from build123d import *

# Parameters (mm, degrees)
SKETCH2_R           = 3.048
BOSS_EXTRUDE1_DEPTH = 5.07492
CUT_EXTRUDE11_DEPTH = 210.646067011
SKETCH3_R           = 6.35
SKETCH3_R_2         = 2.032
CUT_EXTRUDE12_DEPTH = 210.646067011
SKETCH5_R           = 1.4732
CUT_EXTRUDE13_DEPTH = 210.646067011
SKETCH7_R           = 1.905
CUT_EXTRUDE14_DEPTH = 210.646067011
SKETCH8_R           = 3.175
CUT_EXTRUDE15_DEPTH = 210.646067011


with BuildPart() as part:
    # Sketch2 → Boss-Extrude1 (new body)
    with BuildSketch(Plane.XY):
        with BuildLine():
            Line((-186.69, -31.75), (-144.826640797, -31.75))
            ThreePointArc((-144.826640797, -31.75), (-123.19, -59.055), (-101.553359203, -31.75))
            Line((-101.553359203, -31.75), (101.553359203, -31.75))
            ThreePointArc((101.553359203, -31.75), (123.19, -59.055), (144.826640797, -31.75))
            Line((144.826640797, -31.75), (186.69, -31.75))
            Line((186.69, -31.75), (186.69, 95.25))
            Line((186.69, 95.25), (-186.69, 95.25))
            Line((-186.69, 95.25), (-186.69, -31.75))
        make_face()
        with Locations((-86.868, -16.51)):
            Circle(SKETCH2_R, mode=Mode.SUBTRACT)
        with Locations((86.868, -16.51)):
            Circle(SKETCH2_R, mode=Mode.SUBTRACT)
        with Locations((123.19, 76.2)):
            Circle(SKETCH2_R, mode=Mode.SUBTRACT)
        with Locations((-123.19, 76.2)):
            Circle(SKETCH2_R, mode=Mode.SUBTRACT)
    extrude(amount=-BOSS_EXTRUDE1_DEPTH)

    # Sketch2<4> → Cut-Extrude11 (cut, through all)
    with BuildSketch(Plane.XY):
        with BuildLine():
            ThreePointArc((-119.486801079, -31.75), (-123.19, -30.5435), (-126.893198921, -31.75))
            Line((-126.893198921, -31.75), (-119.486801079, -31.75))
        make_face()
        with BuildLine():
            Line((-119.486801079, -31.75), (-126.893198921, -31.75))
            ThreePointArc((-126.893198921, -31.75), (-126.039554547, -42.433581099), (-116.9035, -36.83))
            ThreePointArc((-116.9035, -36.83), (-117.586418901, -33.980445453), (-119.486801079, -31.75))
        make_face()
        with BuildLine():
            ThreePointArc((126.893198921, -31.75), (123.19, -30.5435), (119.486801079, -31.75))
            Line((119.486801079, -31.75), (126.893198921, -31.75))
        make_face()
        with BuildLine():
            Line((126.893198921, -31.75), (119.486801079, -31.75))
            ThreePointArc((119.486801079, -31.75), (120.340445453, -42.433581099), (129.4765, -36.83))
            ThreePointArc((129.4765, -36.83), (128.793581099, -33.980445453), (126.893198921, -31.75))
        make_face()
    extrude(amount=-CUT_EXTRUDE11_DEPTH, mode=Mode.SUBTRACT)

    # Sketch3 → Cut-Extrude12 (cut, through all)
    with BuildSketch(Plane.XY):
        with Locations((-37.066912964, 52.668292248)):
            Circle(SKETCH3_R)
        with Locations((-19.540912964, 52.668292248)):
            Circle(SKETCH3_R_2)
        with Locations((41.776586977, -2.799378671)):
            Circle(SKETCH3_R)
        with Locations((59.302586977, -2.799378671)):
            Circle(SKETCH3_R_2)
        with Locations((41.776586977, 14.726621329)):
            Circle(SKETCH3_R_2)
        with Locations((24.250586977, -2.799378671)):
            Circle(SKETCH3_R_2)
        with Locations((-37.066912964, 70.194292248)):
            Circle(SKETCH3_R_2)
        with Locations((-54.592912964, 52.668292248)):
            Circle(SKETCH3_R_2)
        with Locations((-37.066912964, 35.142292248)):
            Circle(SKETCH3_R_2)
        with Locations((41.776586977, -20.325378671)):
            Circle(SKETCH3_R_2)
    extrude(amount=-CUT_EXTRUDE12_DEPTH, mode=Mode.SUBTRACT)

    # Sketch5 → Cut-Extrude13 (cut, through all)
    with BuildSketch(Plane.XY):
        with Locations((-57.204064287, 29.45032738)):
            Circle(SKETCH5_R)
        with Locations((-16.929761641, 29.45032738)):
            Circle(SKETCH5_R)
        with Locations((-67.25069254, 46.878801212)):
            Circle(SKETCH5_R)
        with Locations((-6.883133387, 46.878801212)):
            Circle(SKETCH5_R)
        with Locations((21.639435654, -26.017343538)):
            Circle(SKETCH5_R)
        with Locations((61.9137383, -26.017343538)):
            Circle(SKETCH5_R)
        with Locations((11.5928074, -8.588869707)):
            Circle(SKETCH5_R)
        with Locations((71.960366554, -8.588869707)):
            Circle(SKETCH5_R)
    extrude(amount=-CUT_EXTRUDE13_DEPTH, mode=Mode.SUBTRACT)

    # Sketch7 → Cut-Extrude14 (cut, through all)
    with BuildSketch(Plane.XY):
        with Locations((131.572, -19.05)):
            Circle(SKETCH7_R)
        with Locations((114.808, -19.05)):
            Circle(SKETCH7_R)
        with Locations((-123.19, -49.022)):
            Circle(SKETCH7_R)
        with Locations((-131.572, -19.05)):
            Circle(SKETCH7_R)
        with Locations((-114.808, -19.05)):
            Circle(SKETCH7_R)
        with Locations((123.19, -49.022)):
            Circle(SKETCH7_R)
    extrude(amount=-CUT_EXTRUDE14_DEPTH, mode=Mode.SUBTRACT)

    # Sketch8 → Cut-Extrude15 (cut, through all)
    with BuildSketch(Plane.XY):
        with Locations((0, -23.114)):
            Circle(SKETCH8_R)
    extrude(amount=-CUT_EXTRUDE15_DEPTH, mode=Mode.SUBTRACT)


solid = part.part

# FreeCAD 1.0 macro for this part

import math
import FreeCAD as App
import Part
import Sketcher

V = App.Vector
Q = App.Units.Quantity

doc = App.newDocument("Part")
body = doc.addObject("PartDesign::Body", "Body")

sketch1 = body.newObject("Sketcher::SketchObject", "Sketch")
sketch1.AttachmentSupport = (doc.getObject("XY_Plane"), [""])
sketch1.MapMode = "FlatFace"
sketch1.addGeometry(Part.LineSegment(V(-186.7, -31.8, 0), V(-144.8, -31.8, 0)), False)
sketch1.addGeometry(Part.ArcOfCircle(Part.Circle(V(-123.2, -36.8, 0), V(0, 0, 1), 22.2), math.radians(167), math.radians(373)), False)
sketch1.addGeometry(Part.LineSegment(V(-101.6, -31.8, 0), V(101.6, -31.8, 0)), False)
sketch1.addGeometry(Part.ArcOfCircle(Part.Circle(V(123.2, -36.8, 0), V(0, 0, 1), 22.2), math.radians(167), math.radians(373)), False)
sketch1.addGeometry(Part.LineSegment(V(144.8, -31.8, 0), V(186.7, -31.8, 0)), False)
sketch1.addGeometry(Part.LineSegment(V(186.7, -31.8, 0), V(186.7, 95.2, 0)), False)
sketch1.addGeometry(Part.LineSegment(V(186.7, 95.2, 0), V(-186.7, 95.2, 0)), False)
sketch1.addGeometry(Part.LineSegment(V(-186.7, 95.2, 0), V(-186.7, -31.8, 0)), False)
sketch1.addGeometry(Part.Circle(V(-86.9, -16.5, 0), V(0, 0, 1), 3), False)
sketch1.addGeometry(Part.Circle(V(86.9, -16.5, 0), V(0, 0, 1), 3), False)
sketch1.addGeometry(Part.Circle(V(-123.2, 76.2, 0), V(0, 0, 1), 3), False)
sketch1.addGeometry(Part.Circle(V(123.2, 76.2, 0), V(0, 0, 1), 3), False)
sketch1.addConstraint(Sketcher.Constraint("Coincident", 0, 2, 1, 1))
sketch1.addConstraint(Sketcher.Constraint("Coincident", 1, 2, 2, 1))
sketch1.addConstraint(Sketcher.Constraint("Coincident", 2, 2, 3, 1))
sketch1.addConstraint(Sketcher.Constraint("Coincident", 3, 2, 4, 1))
sketch1.addConstraint(Sketcher.Constraint("Coincident", 4, 2, 5, 1))
sketch1.addConstraint(Sketcher.Constraint("Coincident", 5, 2, 6, 1))
sketch1.addConstraint(Sketcher.Constraint("Coincident", 6, 2, 7, 1))
sketch1.addConstraint(Sketcher.Constraint("Coincident", 7, 2, 0, 1))
sketch1.addConstraint(Sketcher.Constraint("Horizontal", 0))
sketch1.addConstraint(Sketcher.Constraint("Horizontal", 2))
sketch1.addConstraint(Sketcher.Constraint("Horizontal", 4))
sketch1.addConstraint(Sketcher.Constraint("Vertical", 5))
sketch1.addConstraint(Sketcher.Constraint("Horizontal", 6))
sketch1.addConstraint(Sketcher.Constraint("Vertical", 7))
sketch1.addConstraint(Sketcher.Constraint("Equal", 1, 3))
sketch1.addConstraint(Sketcher.Constraint("Equal", 8, 9))
sketch1.addConstraint(Sketcher.Constraint("Equal", 9, 10))
sketch1.addConstraint(Sketcher.Constraint("Equal", 10, 11))
sketch1.addConstraint(Sketcher.Constraint("Symmetric", 1, 3, 3, 3, -2))
sketch1.addConstraint(Sketcher.Constraint("Symmetric", 8, 3, 9, 3, -2))
sketch1.addConstraint(Sketcher.Constraint("Symmetric", 10, 3, 11, 3, -2))
sketch1.addConstraint(Sketcher.Constraint("Symmetric", 4, 2, 7, 2, -2))
sketch1.addConstraint(Sketcher.Constraint("Horizontal", 0, 2, 1, 2))
sketch1.addConstraint(Sketcher.Constraint("Vertical", 1, 3, 10, 3))
sketch1.addConstraint(Sketcher.Constraint("Diameter", 8, Q("0.24 in")))
sketch1.addConstraint(Sketcher.Constraint("DistanceY", 5, 1, 5, 2, Q("5 in")))
sketch1.addConstraint(Sketcher.Constraint("DistanceX", 6, 2, 6, 1, Q("14.7 in")))
sketch1.addConstraint(Sketcher.Constraint("DistanceY", -1, 1, 10, 3, Q("3 in")))
sketch1.addConstraint(Sketcher.Constraint("Radius", 1, Q("0.875 in")))
sketch1.addConstraint(Sketcher.Constraint("DistanceX", 1, 3, 3, 3, Q("9.7 in")))
sketch1.addConstraint(Sketcher.Constraint("DistanceY", 1, 3, 8, 3, Q("0.8 in")))
sketch1.addConstraint(Sketcher.Constraint("DistanceY", 1, 3, 0, 2, Q("0.2 in")))
sketch1.addConstraint(Sketcher.Constraint("DistanceY", 1, 3, -1, 1, Q("1.45 in")))
sketch1.addConstraint(Sketcher.Constraint("DistanceX", 8, 3, -1, 1, Q("3.42 in")))
pad1 = body.newObject("PartDesign::Pad", "Pad")
pad1.Profile = sketch1
pad1.Length = Q("0.1998 in")
pad1.Reversed = True

sketch2 = body.newObject("Sketcher::SketchObject", "Sketch001")
sketch2.AttachmentSupport = (doc.getObject("XY_Plane"), [""])
sketch2.MapMode = "FlatFace"
sketch2.addGeometry(Part.ArcOfCircle(Part.Circle(V(-123, -37, 0), V(0, 0, 1), 6), math.radians(54), math.radians(126)), False)
sketch2.addGeometry(Part.ArcOfCircle(Part.Circle(V(-123, -37, 0), V(0, 0, 1), 6), math.radians(126), math.radians(360)), False)
sketch2.addGeometry(Part.ArcOfCircle(Part.Circle(V(-123, -37, 0), V(0, 0, 1), 6), math.radians(0), math.radians(54)), False)
sketch2.addGeometry(Part.ArcOfCircle(Part.Circle(V(123, -37, 0), V(0, 0, 1), 6), math.radians(54), math.radians(126)), False)
sketch2.addGeometry(Part.ArcOfCircle(Part.Circle(V(123, -37, 0), V(0, 0, 1), 6), math.radians(126), math.radians(360)), False)
sketch2.addGeometry(Part.ArcOfCircle(Part.Circle(V(123, -37, 0), V(0, 0, 1), 6), math.radians(0), math.radians(54)), False)
sketch2.addConstraint(Sketcher.Constraint("Tangent", 0, 2, 1, 1))
sketch2.addConstraint(Sketcher.Constraint("Tangent", 1, 2, 2, 1))
sketch2.addConstraint(Sketcher.Constraint("Tangent", 2, 2, 0, 1))
sketch2.addConstraint(Sketcher.Constraint("Tangent", 3, 2, 4, 1))
sketch2.addConstraint(Sketcher.Constraint("Tangent", 4, 2, 5, 1))
sketch2.addConstraint(Sketcher.Constraint("Tangent", 5, 2, 3, 1))
sketch2.addConstraint(Sketcher.Constraint("Equal", 2, 3))
sketch2.addConstraint(Sketcher.Constraint("Symmetric", 0, 3, 3, 3, -2))
sketch2.addConstraint(Sketcher.Constraint("Horizontal", 5, 3, 1, 2))
sketch2.addConstraint(Sketcher.Constraint("Horizontal", 0, 2, 2, 2))
sketch2.addConstraint(Sketcher.Constraint("Horizontal", 2, 2, 3, 2))
sketch2.addConstraint(Sketcher.Constraint("Horizontal", 1, 2, 4, 2))
sketch2.addConstraint(Sketcher.Constraint("Horizontal", 3, 2, 5, 2))
sketch2.addConstraint(Sketcher.Constraint("Radius", 0, Q("0.2475 in")))
sketch2.addConstraint(Sketcher.Constraint("DistanceX", 0, 3, 3, 3, Q("9.7 in")))
sketch2.addConstraint(Sketcher.Constraint("DistanceY", 0, 3, 0, 2, Q("0.2 in")))
sketch2.addConstraint(Sketcher.Constraint("DistanceY", 0, 3, -1, 1, Q("1.45 in")))
pocket1 = body.newObject("PartDesign::Pocket", "Pocket")
pocket1.Profile = sketch2
pocket1.Type = "ThroughAll"

sketch3 = body.newObject("Sketcher::SketchObject", "Sketch002")
sketch3.AttachmentSupport = (doc.getObject("XY_Plane"), [""])
sketch3.MapMode = "FlatFace"
sketch3.addGeometry(Part.Circle(V(-37.1, 52.7, 0), V(0, 0, 1), 6.3), False)
sketch3.addGeometry(Part.Circle(V(-19.5, 52.7, 0), V(0, 0, 1), 2), False)
sketch3.addGeometry(Part.Circle(V(41.8, -2.8, 0), V(0, 0, 1), 6.3), False)
sketch3.addGeometry(Part.Circle(V(59.3, -2.8, 0), V(0, 0, 1), 2), False)
sketch3.addGeometry(Part.Circle(V(41.8, 14.7, 0), V(0, 0, 1), 2), False)
sketch3.addGeometry(Part.Circle(V(24.3, -2.8, 0), V(0, 0, 1), 2), False)
sketch3.addGeometry(Part.Circle(V(-37.1, 70.2, 0), V(0, 0, 1), 2), False)
sketch3.addGeometry(Part.Circle(V(-54.6, 52.7, 0), V(0, 0, 1), 2), False)
sketch3.addGeometry(Part.Circle(V(-37.1, 35.1, 0), V(0, 0, 1), 2), False)
sketch3.addGeometry(Part.Circle(V(41.8, -20.3, 0), V(0, 0, 1), 2), False)
sketch3.addConstraint(Sketcher.Constraint("Equal", 0, 2))
sketch3.addConstraint(Sketcher.Constraint("Equal", 1, 3))
sketch3.addConstraint(Sketcher.Constraint("Equal", 3, 4))
sketch3.addConstraint(Sketcher.Constraint("Equal", 4, 5))
sketch3.addConstraint(Sketcher.Constraint("Equal", 5, 6))
sketch3.addConstraint(Sketcher.Constraint("Equal", 6, 7))
sketch3.addConstraint(Sketcher.Constraint("Equal", 7, 8))
sketch3.addConstraint(Sketcher.Constraint("Equal", 8, 9))
sketch3.addConstraint(Sketcher.Constraint("Horizontal", 0, 3, 1, 3))
sketch3.addConstraint(Sketcher.Constraint("Horizontal", 2, 3, 3, 3))
sketch3.addConstraint(Sketcher.Constraint("Horizontal", 3, 3, 5, 3))
sketch3.addConstraint(Sketcher.Constraint("Horizontal", 1, 3, 7, 3))
sketch3.addConstraint(Sketcher.Constraint("Vertical", 2, 3, 4, 3))
sketch3.addConstraint(Sketcher.Constraint("Vertical", 0, 3, 6, 3))
sketch3.addConstraint(Sketcher.Constraint("Vertical", 6, 3, 8, 3))
sketch3.addConstraint(Sketcher.Constraint("Vertical", 4, 3, 9, 3))
sketch3.addConstraint(Sketcher.Constraint("Diameter", 0, Q("0.5 in")))
sketch3.addConstraint(Sketcher.Constraint("Diameter", 1, Q("0.16 in")))
sketch3.addConstraint(Sketcher.Constraint("DistanceX", 0, 3, 1, 3, Q("0.69 in")))
sketch3.addConstraint(Sketcher.Constraint("DistanceX", 2, 3, 3, 3, Q("0.69 in")))
sketch3.addConstraint(Sketcher.Constraint("DistanceY", 2, 3, 4, 3, Q("0.69 in")))
sketch3.addConstraint(Sketcher.Constraint("DistanceX", 5, 3, 2, 3, Q("0.69 in")))
sketch3.addConstraint(Sketcher.Constraint("DistanceY", 0, 3, 6, 3, Q("0.69 in")))
sketch3.addConstraint(Sketcher.Constraint("DistanceX", 7, 3, 0, 3, Q("0.69 in")))
sketch3.addConstraint(Sketcher.Constraint("DistanceY", 8, 3, 0, 3, Q("0.69 in")))
sketch3.addConstraint(Sketcher.Constraint("DistanceY", 9, 3, 2, 3, Q("0.69 in")))
sketch3.addConstraint(Sketcher.Constraint("DistanceX", 1, 3, 2, 3, 61.3175))
sketch3.addConstraint(Sketcher.Constraint("DistanceY", 2, 3, -1, 1, 2.799379))
sketch3.addConstraint(Sketcher.Constraint("DistanceY", 2, 3, 1, 3, 55.467671))
sketch3.addConstraint(Sketcher.Constraint("DistanceX", 0, 3, -1, 1, 37.066913))
pocket2 = body.newObject("PartDesign::Pocket", "Pocket001")
pocket2.Profile = sketch3
pocket2.Type = "ThroughAll"

sketch4 = body.newObject("Sketcher::SketchObject", "Sketch003")
sketch4.AttachmentSupport = (doc.getObject("XY_Plane"), [""])
sketch4.MapMode = "FlatFace"
sketch4.addGeometry(Part.Circle(V(-57.2, 29.5, 0), V(0, 0, 1), 1.5), False)
sketch4.addGeometry(Part.Circle(V(-16.9, 29.5, 0), V(0, 0, 1), 1.5), False)
sketch4.addGeometry(Part.Circle(V(-67.3, 46.9, 0), V(0, 0, 1), 1.5), False)
sketch4.addGeometry(Part.Circle(V(-6.9, 46.9, 0), V(0, 0, 1), 1.5), False)
sketch4.addGeometry(Part.Circle(V(21.6, -26, 0), V(0, 0, 1), 1.5), False)
sketch4.addGeometry(Part.Circle(V(61.9, -26, 0), V(0, 0, 1), 1.5), False)
sketch4.addGeometry(Part.Circle(V(11.6, -8.6, 0), V(0, 0, 1), 1.5), False)
sketch4.addGeometry(Part.Circle(V(72, -8.6, 0), V(0, 0, 1), 1.5), False)
sketch4.addConstraint(Sketcher.Constraint("Equal", 0, 1))
sketch4.addConstraint(Sketcher.Constraint("Equal", 1, 2))
sketch4.addConstraint(Sketcher.Constraint("Equal", 2, 3))
sketch4.addConstraint(Sketcher.Constraint("Equal", 3, 4))
sketch4.addConstraint(Sketcher.Constraint("Equal", 4, 5))
sketch4.addConstraint(Sketcher.Constraint("Equal", 5, 6))
sketch4.addConstraint(Sketcher.Constraint("Equal", 6, 7))
sketch4.addConstraint(Sketcher.Constraint("Horizontal", 0, 3, 1, 3))
sketch4.addConstraint(Sketcher.Constraint("Horizontal", 2, 3, 3, 3))
sketch4.addConstraint(Sketcher.Constraint("Horizontal", 4, 3, 5, 3))
sketch4.addConstraint(Sketcher.Constraint("Horizontal", 6, 3, 7, 3))
sketch4.addConstraint(Sketcher.Constraint("Diameter", 0, Q("0.116 in")))
sketch4.addConstraint(Sketcher.Constraint("DistanceY", -1, 1, 2, 3, 46.878801))
sketch4.addConstraint(Sketcher.Constraint("DistanceX", 0, 3, 4, 3, 78.8435))
sketch4.addConstraint(Sketcher.Constraint("DistanceX", 1, 3, 5, 3, 78.8435))
sketch4.addConstraint(Sketcher.Constraint("DistanceX", 3, 3, 7, 3, 78.8435))
sketch4.addConstraint(Sketcher.Constraint("DistanceX", 1, 3, -1, 1, 16.929762))
sketch4.addConstraint(Sketcher.Constraint("DistanceY", 6, 3, -1, 1, 8.58887))
sketch4.addConstraint(Sketcher.Constraint("DistanceX", 2, 3, 0, 3, 10.046628))
sketch4.addConstraint(Sketcher.Constraint("DistanceX", 2, 3, 1, 3, 50.320931))
sketch4.addConstraint(Sketcher.Constraint("DistanceX", 1, 3, 3, 3, 10.046628))
sketch4.addConstraint(Sketcher.Constraint("DistanceY", 4, 3, 1, 3, 55.467671))
sketch4.addConstraint(Sketcher.Constraint("DistanceX", 6, 3, 4, 3, 10.046628))
sketch4.addConstraint(Sketcher.Constraint("DistanceY", -1, 1, 0, 3, 29.450327))
pocket3 = body.newObject("PartDesign::Pocket", "Pocket002")
pocket3.Profile = sketch4
pocket3.Type = "ThroughAll"

sketch5 = body.newObject("Sketcher::SketchObject", "Sketch004")
sketch5.AttachmentSupport = (doc.getObject("XY_Plane"), [""])
sketch5.MapMode = "FlatFace"
sketch5.addGeometry(Part.Circle(V(131.6, -19.1, 0), V(0, 0, 1), 1.9), False)
sketch5.addGeometry(Part.Circle(V(114.8, -19.1, 0), V(0, 0, 1), 1.9), False)
sketch5.addGeometry(Part.Circle(V(-123.2, -49, 0), V(0, 0, 1), 1.9), False)
sketch5.addGeometry(Part.Circle(V(-131.6, -19.1, 0), V(0, 0, 1), 1.9), False)
sketch5.addGeometry(Part.Circle(V(-114.8, -19.1, 0), V(0, 0, 1), 1.9), False)
sketch5.addGeometry(Part.Circle(V(123.2, -49, 0), V(0, 0, 1), 1.9), False)
sketch5.addConstraint(Sketcher.Constraint("Equal", 0, 1))
sketch5.addConstraint(Sketcher.Constraint("Equal", 1, 2))
sketch5.addConstraint(Sketcher.Constraint("Equal", 2, 3))
sketch5.addConstraint(Sketcher.Constraint("Equal", 3, 4))
sketch5.addConstraint(Sketcher.Constraint("Equal", 4, 5))
sketch5.addConstraint(Sketcher.Constraint("Symmetric", 0, 3, 3, 3, -2))
sketch5.addConstraint(Sketcher.Constraint("Symmetric", 1, 3, 4, 3, -2))
sketch5.addConstraint(Sketcher.Constraint("Symmetric", 2, 3, 5, 3, -2))
sketch5.addConstraint(Sketcher.Constraint("Horizontal", 0, 3, 1, 3))
sketch5.addConstraint(Sketcher.Constraint("Diameter", 0, Q("0.15 in")))
sketch5.addConstraint(Sketcher.Constraint("DistanceX", 3, 3, 1, 3, Q("9.7 in")))
sketch5.addConstraint(Sketcher.Constraint("DistanceX", 2, 3, 5, 3, Q("9.7 in")))
sketch5.addConstraint(Sketcher.Constraint("DistanceX", -1, 1, 0, 3, Q("5.18 in")))
sketch5.addConstraint(Sketcher.Constraint("DistanceY", 0, 3, -1, 1, Q("0.75 in")))
sketch5.addConstraint(Sketcher.Constraint("DistanceY", 2, 3, -1, 1, Q("1.93 in")))
pocket4 = body.newObject("PartDesign::Pocket", "Pocket003")
pocket4.Profile = sketch5
pocket4.Type = "ThroughAll"

sketch6 = body.newObject("Sketcher::SketchObject", "Sketch005")
sketch6.AttachmentSupport = (doc.getObject("XY_Plane"), [""])
sketch6.MapMode = "FlatFace"
sketch6.addGeometry(Part.Circle(V(0, -23.1, 0), V(0, 0, 1), 3.2), False)
sketch6.addConstraint(Sketcher.Constraint("PointOnObject", 0, 3, -2))
sketch6.addConstraint(Sketcher.Constraint("Diameter", 0, Q("0.25 in")))
sketch6.addConstraint(Sketcher.Constraint("DistanceY", 0, 3, -1, 1, Q("0.91 in")))
pocket5 = body.newObject("PartDesign::Pocket", "Pocket004")
pocket5.Profile = sketch6
pocket5.Type = "ThroughAll"

doc.recompute()
